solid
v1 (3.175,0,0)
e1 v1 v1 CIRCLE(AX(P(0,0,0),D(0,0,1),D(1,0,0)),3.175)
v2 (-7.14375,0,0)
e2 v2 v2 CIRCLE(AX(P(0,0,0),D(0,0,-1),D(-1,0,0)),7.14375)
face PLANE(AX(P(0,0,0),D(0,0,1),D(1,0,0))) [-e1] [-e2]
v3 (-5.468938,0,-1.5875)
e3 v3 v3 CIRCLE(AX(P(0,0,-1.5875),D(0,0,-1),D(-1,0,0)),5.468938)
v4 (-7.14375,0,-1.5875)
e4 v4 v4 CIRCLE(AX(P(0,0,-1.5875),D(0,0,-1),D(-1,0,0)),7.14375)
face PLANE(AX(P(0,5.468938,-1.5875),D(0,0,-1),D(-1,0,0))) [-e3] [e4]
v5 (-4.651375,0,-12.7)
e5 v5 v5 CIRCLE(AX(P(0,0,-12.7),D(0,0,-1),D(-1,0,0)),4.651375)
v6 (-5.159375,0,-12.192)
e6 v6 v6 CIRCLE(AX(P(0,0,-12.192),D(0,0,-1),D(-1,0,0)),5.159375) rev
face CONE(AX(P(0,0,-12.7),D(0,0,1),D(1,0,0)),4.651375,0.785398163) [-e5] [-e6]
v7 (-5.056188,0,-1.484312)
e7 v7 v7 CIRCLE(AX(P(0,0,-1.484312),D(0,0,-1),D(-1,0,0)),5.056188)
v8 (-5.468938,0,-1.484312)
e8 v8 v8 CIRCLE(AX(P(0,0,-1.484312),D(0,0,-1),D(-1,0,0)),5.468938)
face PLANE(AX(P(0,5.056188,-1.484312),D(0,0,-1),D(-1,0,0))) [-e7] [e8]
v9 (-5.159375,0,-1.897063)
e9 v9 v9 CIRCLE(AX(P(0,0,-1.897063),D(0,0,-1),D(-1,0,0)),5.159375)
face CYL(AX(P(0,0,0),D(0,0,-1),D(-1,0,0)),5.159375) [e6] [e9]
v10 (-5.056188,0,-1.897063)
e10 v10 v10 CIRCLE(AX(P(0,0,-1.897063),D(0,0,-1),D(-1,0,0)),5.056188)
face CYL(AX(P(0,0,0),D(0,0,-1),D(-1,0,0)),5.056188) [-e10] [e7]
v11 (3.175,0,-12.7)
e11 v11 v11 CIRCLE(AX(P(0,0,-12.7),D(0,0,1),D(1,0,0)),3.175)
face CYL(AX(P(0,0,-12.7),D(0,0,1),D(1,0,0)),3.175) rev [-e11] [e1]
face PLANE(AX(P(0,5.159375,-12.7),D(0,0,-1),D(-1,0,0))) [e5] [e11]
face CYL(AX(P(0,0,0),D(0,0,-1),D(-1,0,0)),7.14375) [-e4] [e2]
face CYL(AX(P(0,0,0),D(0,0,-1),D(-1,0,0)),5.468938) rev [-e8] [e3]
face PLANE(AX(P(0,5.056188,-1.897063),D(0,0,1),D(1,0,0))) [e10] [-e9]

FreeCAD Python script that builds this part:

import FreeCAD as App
import Part
import Sketcher

V = App.Vector
Q = App.Units.Quantity


def edges_at(feature, points):
    """Names of the edges that pass closest to the given points."""
    edges = feature.Shape.Edges
    near = lambda p: min(range(len(edges)), key=lambda i: edges[i].distToShape(Part.Vertex(*p))[0])
    return sorted({f"Edge{near(p) + 1}" for p in points})


def add_polygon(sketch, points):
    """Adds a closed chain of lines whose ends are joined by coincident constraints."""
    first, n = sketch.GeometryCount, len(points)
    for a, b in zip(points, points[1:] + points[:1]):
        sketch.addGeometry(Part.LineSegment(App.Vector(*a, 0), App.Vector(*b, 0)), False)
    for i in range(n):
        sketch.addConstraint(Sketcher.Constraint("Coincident", first + i, 2, first + (i + 1) % n, 1))

doc = App.newDocument("Part")
body = doc.addObject("PartDesign::Body", "Body")

# Sketch on YZ plane
sketch1 = doc.addObject("Sketcher::SketchObject", "Sketch")
body.addObject(sketch1)
sketch1.AttachmentSupport = (doc.YZ_Plane, [""])
sketch1.MapMode = "FlatFace"
add_polygon(sketch1, [(7.14, 0), (0, 0), (0, -12.7), (5.16, -12.7), (5.16, -1.9), (5.06, -1.9), (5.06, -1.48), (5.47, -1.48), (5.47, -1.59), (7.14, -1.59)])  # lines 0-9
sketch1.addConstraint([
    Sketcher.Constraint("Horizontal", 0),
    Sketcher.Constraint("Vertical", 1),
    Sketcher.Constraint("Horizontal", 2),
    Sketcher.Constraint("Vertical", 3),
    Sketcher.Constraint("Horizontal", 4),
    Sketcher.Constraint("Vertical", 5),
    Sketcher.Constraint("Horizontal", 6),
    Sketcher.Constraint("Vertical", 7),
    Sketcher.Constraint("Horizontal", 8),
    Sketcher.Constraint("Vertical", 9),
    Sketcher.Constraint("Coincident", 0, 2, -1, 1),
    Sketcher.Constraint("Equal", 6, 5),
    Sketcher.Constraint("Equal", 4, 7),
    Sketcher.Constraint("DistanceY", 1, 2, 1, 1, Q("0.5 in")),
    Sketcher.Constraint("DistanceX", 0, 2, 0, 1, Q("0.28125 in")),
    Sketcher.Constraint("DistanceX", 2, 1, 2, 2, Q("0.203125 in")),
    Sketcher.Constraint("DistanceY", 9, 1, 9, 2, Q("0.0625 in")),
    Sketcher.Constraint("DistanceX", 6, 1, 6, 2, 0.41275),
    Sketcher.Constraint("DistanceX", 4, 2, 4, 1, 0.103187),
])
revolution = doc.addObject("PartDesign::Revolution", "Revolution")
body.addObject(revolution)
revolution.Profile = sketch1
revolution.ReferenceAxis = (sketch1, ["V_Axis"])
revolution.Angle = 360

# Sketch on XY plane
sketch2 = doc.addObject("Sketcher::SketchObject", "Sketch001")
body.addObject(sketch2)
sketch2.AttachmentSupport = (doc.XY_Plane, [""])
sketch2.MapMode = "FlatFace"
sketch2.addGeometry(Part.Circle(V(0, 0, 0), V(0, 0, 1), 3.2), False)
sketch2.addConstraint([
    Sketcher.Constraint("Coincident", 0, 3, -1, 1),
    Sketcher.Constraint("Diameter", 0, Q("0.25 in")),
])
pocket1 = doc.addObject("PartDesign::Pocket", "Pocket")
body.addObject(pocket1)
pocket1.Profile = sketch2
pocket1.Type = "ThroughAll"
doc.recompute()

chamfer = doc.addObject("PartDesign::Chamfer", "Chamfer")
body.addObject(chamfer)
chamfer.Base = (pocket1, edges_at(pocket1, [(5.159, 0, -12.7)]))
chamfer.Size = Q("0.02 in")

doc.recompute()
